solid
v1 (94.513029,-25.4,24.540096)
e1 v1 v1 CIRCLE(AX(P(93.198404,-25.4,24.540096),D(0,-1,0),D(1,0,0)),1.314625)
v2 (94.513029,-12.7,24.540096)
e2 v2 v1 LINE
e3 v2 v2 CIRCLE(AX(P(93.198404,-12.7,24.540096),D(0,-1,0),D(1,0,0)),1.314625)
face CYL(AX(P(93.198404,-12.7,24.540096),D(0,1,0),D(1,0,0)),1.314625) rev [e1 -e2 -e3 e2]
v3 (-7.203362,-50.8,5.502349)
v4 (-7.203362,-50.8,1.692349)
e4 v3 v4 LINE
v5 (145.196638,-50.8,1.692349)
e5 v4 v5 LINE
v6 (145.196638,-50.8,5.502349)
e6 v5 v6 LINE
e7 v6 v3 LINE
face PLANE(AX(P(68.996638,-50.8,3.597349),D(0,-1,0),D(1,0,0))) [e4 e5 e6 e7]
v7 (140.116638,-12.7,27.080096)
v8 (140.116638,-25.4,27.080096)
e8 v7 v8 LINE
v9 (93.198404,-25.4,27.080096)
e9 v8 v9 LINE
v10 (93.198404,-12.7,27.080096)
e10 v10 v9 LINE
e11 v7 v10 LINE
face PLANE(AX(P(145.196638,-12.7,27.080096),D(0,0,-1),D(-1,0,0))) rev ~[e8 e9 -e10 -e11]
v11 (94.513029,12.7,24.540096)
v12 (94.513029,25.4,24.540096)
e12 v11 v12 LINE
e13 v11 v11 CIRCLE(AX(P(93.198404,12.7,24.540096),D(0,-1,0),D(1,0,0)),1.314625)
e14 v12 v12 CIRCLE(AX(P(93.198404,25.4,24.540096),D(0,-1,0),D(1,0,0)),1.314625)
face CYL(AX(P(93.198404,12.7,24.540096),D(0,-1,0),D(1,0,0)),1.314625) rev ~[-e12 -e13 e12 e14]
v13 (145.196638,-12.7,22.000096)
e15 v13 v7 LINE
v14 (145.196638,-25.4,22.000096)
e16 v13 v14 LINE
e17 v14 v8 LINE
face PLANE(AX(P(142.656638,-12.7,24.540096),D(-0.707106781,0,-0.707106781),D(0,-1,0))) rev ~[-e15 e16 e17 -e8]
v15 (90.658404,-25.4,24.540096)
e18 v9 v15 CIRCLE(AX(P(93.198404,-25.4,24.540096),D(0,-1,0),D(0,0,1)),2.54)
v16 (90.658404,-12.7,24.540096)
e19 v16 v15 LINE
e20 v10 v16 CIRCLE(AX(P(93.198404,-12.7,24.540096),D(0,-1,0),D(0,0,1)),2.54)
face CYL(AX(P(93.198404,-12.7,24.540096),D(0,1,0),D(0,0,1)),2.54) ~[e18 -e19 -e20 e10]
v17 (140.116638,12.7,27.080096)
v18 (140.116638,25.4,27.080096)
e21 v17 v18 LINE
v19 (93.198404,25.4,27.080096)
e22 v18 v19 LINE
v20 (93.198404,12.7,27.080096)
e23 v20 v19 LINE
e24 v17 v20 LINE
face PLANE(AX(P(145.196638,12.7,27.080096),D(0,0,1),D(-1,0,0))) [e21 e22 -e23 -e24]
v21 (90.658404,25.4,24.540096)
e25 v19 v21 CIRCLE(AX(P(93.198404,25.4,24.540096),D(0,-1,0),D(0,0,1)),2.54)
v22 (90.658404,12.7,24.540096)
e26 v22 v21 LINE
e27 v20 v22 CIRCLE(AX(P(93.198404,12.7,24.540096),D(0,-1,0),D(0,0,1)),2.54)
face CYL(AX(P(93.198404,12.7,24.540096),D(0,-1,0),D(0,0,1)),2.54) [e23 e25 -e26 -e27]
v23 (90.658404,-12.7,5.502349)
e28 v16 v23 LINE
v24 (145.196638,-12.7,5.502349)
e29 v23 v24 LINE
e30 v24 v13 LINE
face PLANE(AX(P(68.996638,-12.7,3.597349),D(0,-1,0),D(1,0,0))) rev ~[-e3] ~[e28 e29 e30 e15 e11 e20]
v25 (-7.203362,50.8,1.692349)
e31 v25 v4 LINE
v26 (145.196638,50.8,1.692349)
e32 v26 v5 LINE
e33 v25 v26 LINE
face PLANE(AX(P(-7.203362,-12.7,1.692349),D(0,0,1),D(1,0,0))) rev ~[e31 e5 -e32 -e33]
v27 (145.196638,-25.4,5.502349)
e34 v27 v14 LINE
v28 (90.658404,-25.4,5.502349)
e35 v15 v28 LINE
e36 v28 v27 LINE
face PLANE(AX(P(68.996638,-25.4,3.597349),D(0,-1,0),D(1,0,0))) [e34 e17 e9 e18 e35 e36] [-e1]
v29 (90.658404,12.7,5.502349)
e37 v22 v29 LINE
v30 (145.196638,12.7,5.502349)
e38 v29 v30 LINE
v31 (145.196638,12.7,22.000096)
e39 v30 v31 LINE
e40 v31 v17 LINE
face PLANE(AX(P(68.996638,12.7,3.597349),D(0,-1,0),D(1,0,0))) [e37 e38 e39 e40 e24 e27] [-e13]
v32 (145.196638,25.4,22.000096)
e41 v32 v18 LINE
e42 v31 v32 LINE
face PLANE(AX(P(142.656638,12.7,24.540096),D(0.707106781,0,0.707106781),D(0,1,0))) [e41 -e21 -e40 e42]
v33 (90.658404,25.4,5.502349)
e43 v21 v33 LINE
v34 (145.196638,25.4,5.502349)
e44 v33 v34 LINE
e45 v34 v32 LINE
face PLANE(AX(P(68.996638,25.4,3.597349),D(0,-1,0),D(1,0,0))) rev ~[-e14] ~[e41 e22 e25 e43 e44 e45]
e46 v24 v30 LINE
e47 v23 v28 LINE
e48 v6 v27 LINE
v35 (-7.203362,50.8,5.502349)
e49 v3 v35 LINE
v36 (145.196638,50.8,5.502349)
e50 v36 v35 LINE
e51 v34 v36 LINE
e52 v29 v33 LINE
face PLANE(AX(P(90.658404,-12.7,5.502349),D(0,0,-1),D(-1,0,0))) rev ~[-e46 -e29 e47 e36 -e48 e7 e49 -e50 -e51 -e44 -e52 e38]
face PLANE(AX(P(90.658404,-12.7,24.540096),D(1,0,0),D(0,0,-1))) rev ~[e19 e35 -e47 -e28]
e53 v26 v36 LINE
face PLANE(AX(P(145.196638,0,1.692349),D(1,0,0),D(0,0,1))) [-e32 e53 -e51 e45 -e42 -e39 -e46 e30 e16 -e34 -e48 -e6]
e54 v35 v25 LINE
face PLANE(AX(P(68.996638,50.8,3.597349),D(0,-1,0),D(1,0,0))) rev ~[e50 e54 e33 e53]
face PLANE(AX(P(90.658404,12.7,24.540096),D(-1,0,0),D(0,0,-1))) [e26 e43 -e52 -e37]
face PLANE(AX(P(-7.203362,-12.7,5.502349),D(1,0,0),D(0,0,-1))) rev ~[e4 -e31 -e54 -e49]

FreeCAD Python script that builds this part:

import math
import FreeCAD as App
import Part
import Sketcher

V = App.Vector
Q = App.Units.Quantity


def edges_at(feature, points):
    """Names of the edges that pass closest to the given points."""
    edges = feature.Shape.Edges
    near = lambda p: min(range(len(edges)), key=lambda i: edges[i].distToShape(Part.Vertex(*p))[0])
    return sorted({f"Edge{near(p) + 1}" for p in points})


def add_polygon(sketch, points):
    """Adds a closed chain of lines whose ends are joined by coincident constraints."""
    first, n = sketch.GeometryCount, len(points)
    for a, b in zip(points, points[1:] + points[:1]):
        sketch.addGeometry(Part.LineSegment(App.Vector(*a, 0), App.Vector(*b, 0)), False)
    for i in range(n):
        sketch.addConstraint(Sketcher.Constraint("Coincident", first + i, 2, first + (i + 1) % n, 1))

doc = App.newDocument("Part")
body = doc.addObject("PartDesign::Body", "Body")

sketch1 = doc.addObject("Sketcher::SketchObject", "Sketch")
body.addObject(sketch1)
sketch1.AttachmentSupport = (doc.XZ_Plane, [""])
sketch1.MapMode = "FlatFace"
add_polygon(sketch1, [(-7.2, 5.5), (-7.2, 1.7), (145.2, 1.7), (145.2, 5.5)])
sketch1.addConstraint(Sketcher.Constraint("Vertical", 0))
sketch1.addConstraint(Sketcher.Constraint("Horizontal", 1))
sketch1.addConstraint(Sketcher.Constraint("Vertical", 2))
sketch1.addConstraint(Sketcher.Constraint("Horizontal", 3))
sketch1.addConstraint(Sketcher.Constraint("DistanceX", 1, 1, 1, 2, Q("6 in")))
sketch1.addConstraint(Sketcher.Constraint("DistanceY", 0, 2, 0, 1, Q("0.15 in")))
sketch1.addConstraint(Sketcher.Constraint("DistanceY", -1, 1, 0, 2, 1.692349))
sketch1.addConstraint(Sketcher.Constraint("DistanceX", 0, 2, -1, 1, 7.203362))
pad1 = doc.addObject("PartDesign::Pad", "Pad")
body.addObject(pad1)
pad1.Profile = sketch1
pad1.Length = Q("4 in")
pad1.Midplane = True

sketch2 = doc.addObject("Sketcher::SketchObject", "Sketch001")
body.addObject(sketch2)
sketch2.AttachmentSupport = (doc.XZ_Plane, [""])
sketch2.MapMode = "FlatFace"
sketch2.AttachmentOffset = App.Placement(V(0, 0, -0.5 * 25.4), App.Rotation())
sketch2.addGeometry(Part.LineSegment(V(-7.2, 5.5, 0), V(-7.2, 1.7, 0)), False)
sketch2.addGeometry(Part.LineSegment(V(-7.2, 1.7, 0), V(145.2, 1.7, 0)), False)
sketch2.addGeometry(Part.LineSegment(V(145.2, 1.7, 0), V(145.2, 27.1, 0)), False)
sketch2.addGeometry(Part.LineSegment(V(145.2, 27.1, 0), V(93.2, 27.1, 0)), False)
sketch2.addGeometry(Part.ArcOfCircle(Part.Circle(V(93.2, 24.5, 0), V(0, 0, 1), 2.5), math.radians(90), math.radians(180)), False)
sketch2.addGeometry(Part.LineSegment(V(90.7, 24.5, 0), V(90.7, 5.5, 0)), False)
sketch2.addGeometry(Part.LineSegment(V(90.7, 5.5, 0), V(-7.2, 5.5, 0)), False)
sketch2.addGeometry(Part.Circle(V(93.2, 24.5, 0), V(0, 0, 1), 1.3), False)
sketch2.addConstraint(Sketcher.Constraint("Coincident", 0, 2, 1, 1))
sketch2.addConstraint(Sketcher.Constraint("Coincident", 1, 2, 2, 1))
sketch2.addConstraint(Sketcher.Constraint("Coincident", 2, 2, 3, 1))
sketch2.addConstraint(Sketcher.Constraint("Tangent", 3, 2, 4, 1))
sketch2.addConstraint(Sketcher.Constraint("Tangent", 4, 2, 5, 1))
sketch2.addConstraint(Sketcher.Constraint("Coincident", 5, 2, 6, 1))
sketch2.addConstraint(Sketcher.Constraint("Coincident", 6, 2, 0, 1))
sketch2.addConstraint(Sketcher.Constraint("Vertical", 0))
sketch2.addConstraint(Sketcher.Constraint("Horizontal", 1))
sketch2.addConstraint(Sketcher.Constraint("Vertical", 2))
sketch2.addConstraint(Sketcher.Constraint("Horizontal", 3))
sketch2.addConstraint(Sketcher.Constraint("Vertical", 5))
sketch2.addConstraint(Sketcher.Constraint("Horizontal", 6))
sketch2.addConstraint(Sketcher.Constraint("Coincident", 7, 3, 4, 3))
sketch2.addConstraint(Sketcher.Constraint("Radius", 4, Q("0.1 in")))
sketch2.addConstraint(Sketcher.Constraint("DistanceX", 1, 1, 1, 2, Q("6 in")))
sketch2.addConstraint(Sketcher.Constraint("DistanceY", 0, 2, 0, 1, Q("0.15 in")))
sketch2.addConstraint(Sketcher.Constraint("Diameter", 7, 2.62925))
sketch2.addConstraint(Sketcher.Constraint("DistanceX", 3, 2, 3, 1, 51.998234))
sketch2.addConstraint(Sketcher.Constraint("DistanceY", 2, 1, 2, 2, 25.387747))
sketch2.addConstraint(Sketcher.Constraint("DistanceY", -1, 1, 0, 2, 1.692349))
sketch2.addConstraint(Sketcher.Constraint("DistanceX", -1, 1, 4, 3, 93.198404))
pad2 = doc.addObject("PartDesign::Pad", "Pad001")
body.addObject(pad2)
pad2.Profile = sketch2
pad2.Length = Q("0.5 in")
pad2.Reversed = True

sketch3 = doc.addObject("Sketcher::SketchObject", "Sketch002")
body.addObject(sketch3)
sketch3.AttachmentSupport = (doc.XZ_Plane, [""])
sketch3.MapMode = "FlatFace"
sketch3.AttachmentOffset = App.Placement(V(0, 0, 0.5 * 25.4), App.Rotation())
sketch3.addGeometry(Part.LineSegment(V(-7.2, 5.5, 0), V(-7.2, 1.7, 0)), False)
sketch3.addGeometry(Part.LineSegment(V(-7.2, 1.7, 0), V(145.2, 1.7, 0)), False)
sketch3.addGeometry(Part.LineSegment(V(145.2, 1.7, 0), V(145.2, 27.1, 0)), False)
sketch3.addGeometry(Part.LineSegment(V(145.2, 27.1, 0), V(93.2, 27.1, 0)), False)
sketch3.addGeometry(Part.ArcOfCircle(Part.Circle(V(93.2, 24.5, 0), V(0, 0, 1), 2.5), math.radians(90), math.radians(180)), False)
sketch3.addGeometry(Part.LineSegment(V(90.7, 24.5, 0), V(90.7, 5.5, 0)), False)
sketch3.addGeometry(Part.LineSegment(V(90.7, 5.5, 0), V(-7.2, 5.5, 0)), False)
sketch3.addGeometry(Part.Circle(V(93.2, 24.5, 0), V(0, 0, 1), 1.3), False)
sketch3.addConstraint(Sketcher.Constraint("Coincident", 0, 2, 1, 1))
sketch3.addConstraint(Sketcher.Constraint("Coincident", 1, 2, 2, 1))
sketch3.addConstraint(Sketcher.Constraint("Coincident", 2, 2, 3, 1))
sketch3.addConstraint(Sketcher.Constraint("Tangent", 3, 2, 4, 1))
sketch3.addConstraint(Sketcher.Constraint("Tangent", 4, 2, 5, 1))
sketch3.addConstraint(Sketcher.Constraint("Coincident", 5, 2, 6, 1))
sketch3.addConstraint(Sketcher.Constraint("Coincident", 6, 2, 0, 1))
sketch3.addConstraint(Sketcher.Constraint("Vertical", 0))
sketch3.addConstraint(Sketcher.Constraint("Horizontal", 1))
sketch3.addConstraint(Sketcher.Constraint("Vertical", 2))
sketch3.addConstraint(Sketcher.Constraint("Horizontal", 3))
sketch3.addConstraint(Sketcher.Constraint("Vertical", 5))
sketch3.addConstraint(Sketcher.Constraint("Horizontal", 6))
sketch3.addConstraint(Sketcher.Constraint("Coincident", 7, 3, 4, 3))
sketch3.addConstraint(Sketcher.Constraint("Radius", 4, Q("0.1 in")))
sketch3.addConstraint(Sketcher.Constraint("DistanceX", 1, 1, 1, 2, Q("6 in")))
sketch3.addConstraint(Sketcher.Constraint("DistanceY", 0, 2, 0, 1, Q("0.15 in")))
sketch3.addConstraint(Sketcher.Constraint("Diameter", 7, 2.62925))
sketch3.addConstraint(Sketcher.Constraint("DistanceX", 3, 2, 3, 1, 51.998234))
sketch3.addConstraint(Sketcher.Constraint("DistanceY", 2, 1, 2, 2, 25.387747))
sketch3.addConstraint(Sketcher.Constraint("DistanceY", -1, 1, 0, 2, 1.692349))
sketch3.addConstraint(Sketcher.Constraint("DistanceX", -1, 1, 4, 3, 93.198404))
pad3 = doc.addObject("PartDesign::Pad", "Pad002")
body.addObject(pad3)
pad3.Profile = sketch3
pad3.Length = Q("0.5 in")
doc.recompute()

chamfer = doc.addObject("PartDesign::Chamfer", "Chamfer")
body.addObject(chamfer)
chamfer.Base = (pad3, edges_at(pad3, [(145.197, 19.05, 27.08), (145.197, -19.05, 27.08)]))
chamfer.Size = Q("0.2 in")

doc.recompute()
